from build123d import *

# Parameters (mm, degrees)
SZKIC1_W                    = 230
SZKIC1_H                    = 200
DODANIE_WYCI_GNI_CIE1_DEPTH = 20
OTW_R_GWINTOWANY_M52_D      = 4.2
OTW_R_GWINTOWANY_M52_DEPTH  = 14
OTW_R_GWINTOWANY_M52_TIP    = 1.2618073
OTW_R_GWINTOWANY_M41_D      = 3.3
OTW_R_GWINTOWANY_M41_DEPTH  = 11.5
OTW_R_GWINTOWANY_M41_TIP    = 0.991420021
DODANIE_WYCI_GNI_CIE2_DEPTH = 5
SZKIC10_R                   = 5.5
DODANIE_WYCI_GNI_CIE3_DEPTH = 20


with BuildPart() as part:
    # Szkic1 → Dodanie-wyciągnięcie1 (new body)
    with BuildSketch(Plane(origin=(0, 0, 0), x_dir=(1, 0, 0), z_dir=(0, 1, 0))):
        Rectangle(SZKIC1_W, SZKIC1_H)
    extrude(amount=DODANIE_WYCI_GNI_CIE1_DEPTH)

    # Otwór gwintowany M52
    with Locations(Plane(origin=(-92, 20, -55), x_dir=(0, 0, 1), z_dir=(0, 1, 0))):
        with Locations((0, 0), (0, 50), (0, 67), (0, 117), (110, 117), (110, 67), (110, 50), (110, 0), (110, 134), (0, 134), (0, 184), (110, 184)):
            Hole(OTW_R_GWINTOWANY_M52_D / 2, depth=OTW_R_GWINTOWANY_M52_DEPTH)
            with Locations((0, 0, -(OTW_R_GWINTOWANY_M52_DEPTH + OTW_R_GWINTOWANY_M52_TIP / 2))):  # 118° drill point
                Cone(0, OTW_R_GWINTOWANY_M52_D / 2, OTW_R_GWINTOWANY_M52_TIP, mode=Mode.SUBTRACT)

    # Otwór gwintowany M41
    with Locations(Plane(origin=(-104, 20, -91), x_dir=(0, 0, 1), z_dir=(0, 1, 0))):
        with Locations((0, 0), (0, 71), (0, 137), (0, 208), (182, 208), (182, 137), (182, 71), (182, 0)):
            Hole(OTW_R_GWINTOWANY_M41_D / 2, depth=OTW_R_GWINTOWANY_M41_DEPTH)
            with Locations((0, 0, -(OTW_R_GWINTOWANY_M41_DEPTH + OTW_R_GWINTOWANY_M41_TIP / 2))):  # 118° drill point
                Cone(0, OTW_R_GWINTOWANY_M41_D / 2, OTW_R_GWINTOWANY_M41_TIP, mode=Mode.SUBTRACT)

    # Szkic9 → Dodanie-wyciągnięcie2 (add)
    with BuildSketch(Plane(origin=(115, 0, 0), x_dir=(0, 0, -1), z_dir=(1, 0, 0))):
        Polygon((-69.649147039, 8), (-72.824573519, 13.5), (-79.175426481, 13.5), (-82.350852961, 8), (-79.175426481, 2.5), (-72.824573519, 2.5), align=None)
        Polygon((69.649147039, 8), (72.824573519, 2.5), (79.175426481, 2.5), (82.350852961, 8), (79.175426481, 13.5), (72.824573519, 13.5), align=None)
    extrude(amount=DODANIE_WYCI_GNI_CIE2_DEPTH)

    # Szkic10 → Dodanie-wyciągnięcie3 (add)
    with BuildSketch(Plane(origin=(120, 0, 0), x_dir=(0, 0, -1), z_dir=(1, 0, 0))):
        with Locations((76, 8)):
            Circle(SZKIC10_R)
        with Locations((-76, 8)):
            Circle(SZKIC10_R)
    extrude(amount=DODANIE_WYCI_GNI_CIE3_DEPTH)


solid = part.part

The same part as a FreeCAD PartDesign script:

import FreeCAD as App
import Part
import Sketcher
from FreeCAD import Vector
Q = App.Units.Quantity

doc = App.newDocument("Part")
params = doc.addObject("Spreadsheet::Sheet", "Params")
for row, (alias, value) in enumerate([
    ("sketch1_width", "230 mm"),
    ("sketch1_height", "200 mm"),
    ("pad1_length", "20 mm"),
    ("sketch2_diameter", "4.2 mm"),
    ("hole_diameter", "4.2 mm"),
    ("hole_depth", "14 mm"),
    ("sketch3_diameter", "3.3 mm"),
    ("hole2_diameter", "3.3 mm"),
    ("hole2_depth", "11.5 mm"),
    ("pad2_length", "5 mm"),
    ("sketch5_diameter", "11 mm"),
    ("pad3_length", "20 mm"),
], start=1):
    params.set(f"A{row}", alias)
    params.set(f"B{row}", "=" + value)
    params.setAlias(f"B{row}", alias)

body = doc.addObject("PartDesign::Body", "Body")

sketch1 = doc.addObject("Sketcher::SketchObject", "Sketch")
body.addObject(sketch1)
sketch1.AttachmentSupport = (doc.XZ_Plane, [""])
sketch1.MapMode = "FlatFace"
sketch1.addGeometry(Part.LineSegment(Vector(-115, -100, 0), Vector(-115, 100, 0)), False)
sketch1.addGeometry(Part.LineSegment(Vector(-115, 100, 0), Vector(115, 100, 0)), False)
sketch1.addGeometry(Part.LineSegment(Vector(115, 100, 0), Vector(115, -100, 0)), False)
sketch1.addGeometry(Part.LineSegment(Vector(115, -100, 0), Vector(-115, -100, 0)), False)
sketch1.addConstraint(Sketcher.Constraint("Coincident", 0, 2, 1, 1))
sketch1.addConstraint(Sketcher.Constraint("Coincident", 1, 2, 2, 1))
sketch1.addConstraint(Sketcher.Constraint("Coincident", 2, 2, 3, 1))
sketch1.addConstraint(Sketcher.Constraint("Coincident", 3, 2, 0, 1))
sketch1.addConstraint(Sketcher.Constraint("Vertical", 0))
sketch1.addConstraint(Sketcher.Constraint("Horizontal", 1))
sketch1.addConstraint(Sketcher.Constraint("Vertical", 2))
sketch1.addConstraint(Sketcher.Constraint("Horizontal", 3))
sketch1.addConstraint(Sketcher.Constraint("Symmetric", 0, 2, 2, 2, -1, 1))
sketch1.addConstraint(Sketcher.Constraint("DistanceX", 1, 1, 1, 2, Q("230 mm")))
sketch1.addConstraint(Sketcher.Constraint("DistanceY", 0, 1, 0, 2, Q("200 mm")))
sketch1.setExpression("Constraints[9]", "Params.sketch1_width")
sketch1.setExpression("Constraints[10]", "Params.sketch1_height")
pad1 = doc.addObject("PartDesign::Pad", "Pad")
body.addObject(pad1)
pad1.Profile = sketch1
pad1.setExpression("Length", "Params.pad1_length")
pad1.Reversed = True

sketch2 = doc.addObject("Sketcher::SketchObject", "Sketch001")
body.addObject(sketch2)
sketch2.AttachmentSupport = (doc.XZ_Plane, [""])
sketch2.MapMode = "FlatFace"
sketch2.AttachmentOffset = App.Placement(Vector(0, 0, -20), App.Rotation())
sketch2.addGeometry(Part.Circle(Vector(-92, -55, 0), Vector(0, 0, 1), 2.1), False)
sketch2.addGeometry(Part.Circle(Vector(-42, -55, 0), Vector(0, 0, 1), 2.1), False)
sketch2.addGeometry(Part.Circle(Vector(-25, -55, 0), Vector(0, 0, 1), 2.1), False)
sketch2.addGeometry(Part.Circle(Vector(25, -55, 0), Vector(0, 0, 1), 2.1), False)
sketch2.addGeometry(Part.Circle(Vector(25, 55, 0), Vector(0, 0, 1), 2.1), False)
sketch2.addGeometry(Part.Circle(Vector(-25, 55, 0), Vector(0, 0, 1), 2.1), False)
sketch2.addGeometry(Part.Circle(Vector(-42, 55, 0), Vector(0, 0, 1), 2.1), False)
sketch2.addGeometry(Part.Circle(Vector(-92, 55, 0), Vector(0, 0, 1), 2.1), False)
sketch2.addGeometry(Part.Circle(Vector(42, 55, 0), Vector(0, 0, 1), 2.1), False)
sketch2.addGeometry(Part.Circle(Vector(42, -55, 0), Vector(0, 0, 1), 2.1), False)
sketch2.addGeometry(Part.Circle(Vector(92, -55, 0), Vector(0, 0, 1), 2.1), False)
sketch2.addGeometry(Part.Circle(Vector(92, 55, 0), Vector(0, 0, 1), 2.1), False)
sketch2.addConstraint(Sketcher.Constraint("Equal", 0, 1))
sketch2.addConstraint(Sketcher.Constraint("Equal", 1, 2))
sketch2.addConstraint(Sketcher.Constraint("Equal", 2, 3))
sketch2.addConstraint(Sketcher.Constraint("Equal", 3, 4))
sketch2.addConstraint(Sketcher.Constraint("Equal", 4, 5))
sketch2.addConstraint(Sketcher.Constraint("Equal", 5, 6))
sketch2.addConstraint(Sketcher.Constraint("Equal", 6, 7))
sketch2.addConstraint(Sketcher.Constraint("Equal", 7, 8))
sketch2.addConstraint(Sketcher.Constraint("Equal", 8, 9))
sketch2.addConstraint(Sketcher.Constraint("Equal", 9, 10))
sketch2.addConstraint(Sketcher.Constraint("Equal", 10, 11))
sketch2.addConstraint(Sketcher.Constraint("Symmetric", 2, 3, 4, 3, -1, 1))
sketch2.addConstraint(Sketcher.Constraint("Symmetric", 3, 3, 5, 3, -1, 1))
sketch2.addConstraint(Sketcher.Constraint("Symmetric", 1, 3, 8, 3, -1, 1))
sketch2.addConstraint(Sketcher.Constraint("Symmetric", 6, 3, 9, 3, -1, 1))
sketch2.addConstraint(Sketcher.Constraint("Symmetric", 7, 3, 10, 3, -1, 1))
sketch2.addConstraint(Sketcher.Constraint("Symmetric", 0, 3, 11, 3, -1, 1))
sketch2.addConstraint(Sketcher.Constraint("Symmetric", 2, 3, 3, 3, -2))
sketch2.addConstraint(Sketcher.Constraint("Symmetric", 6, 3, 8, 3, -2))
sketch2.addConstraint(Sketcher.Constraint("Symmetric", 0, 3, 10, 3, -2))
sketch2.addConstraint(Sketcher.Constraint("Horizontal", 0, 3, 1, 3))
sketch2.addConstraint(Sketcher.Constraint("Horizontal", 1, 3, 2, 3))
sketch2.addConstraint(Sketcher.Constraint("Diameter", 0, Q("4.2 mm")))
sketch2.addConstraint(Sketcher.Constraint("DistanceX", 0, 3, -1, 1, Q("92 mm")))
sketch2.addConstraint(Sketcher.Constraint("DistanceY", 0, 3, -1, 1, Q("55 mm")))
sketch2.addConstraint(Sketcher.Constraint("DistanceX", 1, 3, -1, 1, Q("42 mm")))
sketch2.addConstraint(Sketcher.Constraint("DistanceX", 2, 3, -1, 1, Q("25 mm")))
sketch2.setExpression("Constraints[22]", "Params.sketch2_diameter")
doc.recompute()
hole = doc.addObject("PartDesign::Hole", "Hole")
body.addObject(hole)
hole.Profile = sketch2
hole.ThreadType = "None"
hole.setExpression("Diameter", "Params.hole_diameter")
hole.DepthType = "Dimension"
hole.setExpression("Depth", "Params.hole_depth")
hole.DrillPoint = "Angled"
hole.DrillPointAngle = 118
hole.Reversed = True

sketch3 = doc.addObject("Sketcher::SketchObject", "Sketch002")
body.addObject(sketch3)
sketch3.AttachmentSupport = (doc.XZ_Plane, [""])
sketch3.MapMode = "FlatFace"
sketch3.AttachmentOffset = App.Placement(Vector(0, 0, -20), App.Rotation())
sketch3.addGeometry(Part.Circle(Vector(-104, -91, 0), Vector(0, 0, 1), 1.6), False)
sketch3.addGeometry(Part.Circle(Vector(-33, -91, 0), Vector(0, 0, 1), 1.6), False)
sketch3.addGeometry(Part.Circle(Vector(33, -91, 0), Vector(0, 0, 1), 1.6), False)
sketch3.addGeometry(Part.Circle(Vector(104, -91, 0), Vector(0, 0, 1), 1.6), False)
sketch3.addGeometry(Part.Circle(Vector(104, 91, 0), Vector(0, 0, 1), 1.6), False)
sketch3.addGeometry(Part.Circle(Vector(33, 91, 0), Vector(0, 0, 1), 1.6), False)
sketch3.addGeometry(Part.Circle(Vector(-33, 91, 0), Vector(0, 0, 1), 1.6), False)
sketch3.addGeometry(Part.Circle(Vector(-104, 91, 0), Vector(0, 0, 1), 1.6), False)
sketch3.addConstraint(Sketcher.Constraint("Equal", 0, 1))
sketch3.addConstraint(Sketcher.Constraint("Equal", 1, 2))
sketch3.addConstraint(Sketcher.Constraint("Equal", 2, 3))
sketch3.addConstraint(Sketcher.Constraint("Equal", 3, 4))
sketch3.addConstraint(Sketcher.Constraint("Equal", 4, 5))
sketch3.addConstraint(Sketcher.Constraint("Equal", 5, 6))
sketch3.addConstraint(Sketcher.Constraint("Equal", 6, 7))
sketch3.addConstraint(Sketcher.Constraint("Symmetric", 0, 3, 4, 3, -1, 1))
sketch3.addConstraint(Sketcher.Constraint("Symmetric", 1, 3, 5, 3, -1, 1))
sketch3.addConstraint(Sketcher.Constraint("Symmetric", 2, 3, 6, 3, -1, 1))
sketch3.addConstraint(Sketcher.Constraint("Symmetric", 3, 3, 7, 3, -1, 1))
sketch3.addConstraint(Sketcher.Constraint("Symmetric", 1, 3, 2, 3, -2))
sketch3.addConstraint(Sketcher.Constraint("Symmetric", 0, 3, 3, 3, -2))
sketch3.addConstraint(Sketcher.Constraint("Horizontal", 0, 3, 1, 3))
sketch3.addConstraint(Sketcher.Constraint("Diameter", 0, Q("3.3 mm")))
sketch3.addConstraint(Sketcher.Constraint("DistanceX", 0, 3, -1, 1, Q("104 mm")))
sketch3.addConstraint(Sketcher.Constraint("DistanceY", 0, 3, -1, 1, Q("91 mm")))
sketch3.addConstraint(Sketcher.Constraint("DistanceX", 1, 3, -1, 1, Q("33 mm")))
sketch3.setExpression("Constraints[14]", "Params.sketch3_diameter")
doc.recompute()
hole2 = doc.addObject("PartDesign::Hole", "Hole001")
body.addObject(hole2)
hole2.Profile = sketch3
hole2.ThreadType = "None"
hole2.setExpression("Diameter", "Params.hole2_diameter")
hole2.DepthType = "Dimension"
hole2.setExpression("Depth", "Params.hole2_depth")
hole2.DrillPoint = "Angled"
hole2.DrillPointAngle = 118
hole2.Reversed = True

sketch4 = doc.addObject("Sketcher::SketchObject", "Sketch003")
body.addObject(sketch4)
sketch4.AttachmentSupport = (doc.YZ_Plane, [""])
sketch4.MapMode = "FlatFace"
sketch4.AttachmentOffset = App.Placement(Vector(0, 0, 115), App.Rotation())
sketch4.addGeometry(Part.LineSegment(Vector(8, 70, 0), Vector(14, 73, 0)), False)
sketch4.addGeometry(Part.LineSegment(Vector(14, 73, 0), Vector(14, 79, 0)), False)
sketch4.addGeometry(Part.LineSegment(Vector(14, 79, 0), Vector(8, 82, 0)), False)
sketch4.addGeometry(Part.LineSegment(Vector(8, 82, 0), Vector(2, 79, 0)), False)
sketch4.addGeometry(Part.LineSegment(Vector(2, 79, 0), Vector(2, 73, 0)), False)
sketch4.addGeometry(Part.LineSegment(Vector(2, 73, 0), Vector(8, 70, 0)), False)
sketch4.addGeometry(Part.LineSegment(Vector(8, -70, 0), Vector(2, -73, 0)), False)
sketch4.addGeometry(Part.LineSegment(Vector(2, -73, 0), Vector(2, -79, 0)), False)
sketch4.addGeometry(Part.LineSegment(Vector(2, -79, 0), Vector(8, -82, 0)), False)
sketch4.addGeometry(Part.LineSegment(Vector(8, -82, 0), Vector(14, -79, 0)), False)
sketch4.addGeometry(Part.LineSegment(Vector(14, -79, 0), Vector(14, -73, 0)), False)
sketch4.addGeometry(Part.LineSegment(Vector(14, -73, 0), Vector(8, -70, 0)), False)
sketch4.addConstraint(Sketcher.Constraint("Coincident", 0, 2, 1, 1))
sketch4.addConstraint(Sketcher.Constraint("Coincident", 1, 2, 2, 1))
sketch4.addConstraint(Sketcher.Constraint("Coincident", 2, 2, 3, 1))
sketch4.addConstraint(Sketcher.Constraint("Coincident", 3, 2, 4, 1))
sketch4.addConstraint(Sketcher.Constraint("Coincident", 4, 2, 5, 1))
sketch4.addConstraint(Sketcher.Constraint("Coincident", 5, 2, 0, 1))
sketch4.addConstraint(Sketcher.Constraint("Coincident", 6, 2, 7, 1))
sketch4.addConstraint(Sketcher.Constraint("Coincident", 7, 2, 8, 1))
sketch4.addConstraint(Sketcher.Constraint("Coincident", 8, 2, 9, 1))
sketch4.addConstraint(Sketcher.Constraint("Coincident", 9, 2, 10, 1))
sketch4.addConstraint(Sketcher.Constraint("Coincident", 10, 2, 11, 1))
sketch4.addConstraint(Sketcher.Constraint("Coincident", 11, 2, 6, 1))
sketch4.addConstraint(Sketcher.Constraint("Vertical", 1))
sketch4.addConstraint(Sketcher.Constraint("Vertical", 4))
sketch4.addConstraint(Sketcher.Constraint("Vertical", 7))
sketch4.addConstraint(Sketcher.Constraint("Vertical", 10))
sketch4.addConstraint(Sketcher.Constraint("Symmetric", 4, 2, 6, 2, -1))
sketch4.addConstraint(Sketcher.Constraint("Symmetric", 2, 2, 8, 2, -1))
sketch4.addConstraint(Sketcher.Constraint("Symmetric", 1, 2, 9, 2, -1))
sketch4.addConstraint(Sketcher.Constraint("Symmetric", 5, 2, 11, 2, -1))
sketch4.addConstraint(Sketcher.Constraint("Parallel", 0, 3))
sketch4.addConstraint(Sketcher.Constraint("Parallel", 2, 5))
sketch4.addConstraint(Sketcher.Constraint("Parallel", 3, 6))
sketch4.addConstraint(Sketcher.Constraint("Parallel", 5, 8))
sketch4.addConstraint(Sketcher.Constraint("Parallel", 8, 11))
sketch4.addConstraint(Sketcher.Constraint("Horizontal", 1, 2, 3, 2))
sketch4.addConstraint(Sketcher.Constraint("Horizontal", 0, 2, 4, 2))
sketch4.addConstraint(Sketcher.Constraint("Angle", 0, Q("30 deg")))
sketch4.addConstraint(Sketcher.Constraint("DistanceX", -1, 1, 2, 2, Q("8 mm")))
sketch4.addConstraint(Sketcher.Constraint("DistanceX", 3, 2, 1, 2, Q("11 mm")))
sketch4.addConstraint(Sketcher.Constraint("DistanceY", 6, 2, 3, 2, Q("152 mm")))
sketch4.addConstraint(Sketcher.Constraint("DistanceY", 1, 1, 1, 2, Q("6.350853 mm")))
pad2 = doc.addObject("PartDesign::Pad", "Pad001")
body.addObject(pad2)
pad2.Profile = sketch4
pad2.setExpression("Length", "Params.pad2_length")

sketch5 = doc.addObject("Sketcher::SketchObject", "Sketch004")
body.addObject(sketch5)
sketch5.AttachmentSupport = (doc.YZ_Plane, [""])
sketch5.MapMode = "FlatFace"
sketch5.AttachmentOffset = App.Placement(Vector(0, 0, 120), App.Rotation())
sketch5.addGeometry(Part.Circle(Vector(8, -76, 0), Vector(0, 0, 1), 6), False)
sketch5.addGeometry(Part.Circle(Vector(8, 76, 0), Vector(0, 0, 1), 6), False)
sketch5.addConstraint(Sketcher.Constraint("Equal", 0, 1))
sketch5.addConstraint(Sketcher.Constraint("Symmetric", 0, 3, 1, 3, -1))
sketch5.addConstraint(Sketcher.Constraint("Diameter", 0, Q("11 mm")))
sketch5.addConstraint(Sketcher.Constraint("DistanceX", -1, 1, 0, 3, Q("8 mm")))
sketch5.addConstraint(Sketcher.Constraint("DistanceY", 0, 3, -1, 1, Q("76 mm")))
sketch5.setExpression("Constraints[2]", "Params.sketch5_diameter")
pad3 = doc.addObject("PartDesign::Pad", "Pad002")
body.addObject(pad3)
pad3.Profile = sketch5
pad3.setExpression("Length", "Params.pad3_length")

doc.recompute()
